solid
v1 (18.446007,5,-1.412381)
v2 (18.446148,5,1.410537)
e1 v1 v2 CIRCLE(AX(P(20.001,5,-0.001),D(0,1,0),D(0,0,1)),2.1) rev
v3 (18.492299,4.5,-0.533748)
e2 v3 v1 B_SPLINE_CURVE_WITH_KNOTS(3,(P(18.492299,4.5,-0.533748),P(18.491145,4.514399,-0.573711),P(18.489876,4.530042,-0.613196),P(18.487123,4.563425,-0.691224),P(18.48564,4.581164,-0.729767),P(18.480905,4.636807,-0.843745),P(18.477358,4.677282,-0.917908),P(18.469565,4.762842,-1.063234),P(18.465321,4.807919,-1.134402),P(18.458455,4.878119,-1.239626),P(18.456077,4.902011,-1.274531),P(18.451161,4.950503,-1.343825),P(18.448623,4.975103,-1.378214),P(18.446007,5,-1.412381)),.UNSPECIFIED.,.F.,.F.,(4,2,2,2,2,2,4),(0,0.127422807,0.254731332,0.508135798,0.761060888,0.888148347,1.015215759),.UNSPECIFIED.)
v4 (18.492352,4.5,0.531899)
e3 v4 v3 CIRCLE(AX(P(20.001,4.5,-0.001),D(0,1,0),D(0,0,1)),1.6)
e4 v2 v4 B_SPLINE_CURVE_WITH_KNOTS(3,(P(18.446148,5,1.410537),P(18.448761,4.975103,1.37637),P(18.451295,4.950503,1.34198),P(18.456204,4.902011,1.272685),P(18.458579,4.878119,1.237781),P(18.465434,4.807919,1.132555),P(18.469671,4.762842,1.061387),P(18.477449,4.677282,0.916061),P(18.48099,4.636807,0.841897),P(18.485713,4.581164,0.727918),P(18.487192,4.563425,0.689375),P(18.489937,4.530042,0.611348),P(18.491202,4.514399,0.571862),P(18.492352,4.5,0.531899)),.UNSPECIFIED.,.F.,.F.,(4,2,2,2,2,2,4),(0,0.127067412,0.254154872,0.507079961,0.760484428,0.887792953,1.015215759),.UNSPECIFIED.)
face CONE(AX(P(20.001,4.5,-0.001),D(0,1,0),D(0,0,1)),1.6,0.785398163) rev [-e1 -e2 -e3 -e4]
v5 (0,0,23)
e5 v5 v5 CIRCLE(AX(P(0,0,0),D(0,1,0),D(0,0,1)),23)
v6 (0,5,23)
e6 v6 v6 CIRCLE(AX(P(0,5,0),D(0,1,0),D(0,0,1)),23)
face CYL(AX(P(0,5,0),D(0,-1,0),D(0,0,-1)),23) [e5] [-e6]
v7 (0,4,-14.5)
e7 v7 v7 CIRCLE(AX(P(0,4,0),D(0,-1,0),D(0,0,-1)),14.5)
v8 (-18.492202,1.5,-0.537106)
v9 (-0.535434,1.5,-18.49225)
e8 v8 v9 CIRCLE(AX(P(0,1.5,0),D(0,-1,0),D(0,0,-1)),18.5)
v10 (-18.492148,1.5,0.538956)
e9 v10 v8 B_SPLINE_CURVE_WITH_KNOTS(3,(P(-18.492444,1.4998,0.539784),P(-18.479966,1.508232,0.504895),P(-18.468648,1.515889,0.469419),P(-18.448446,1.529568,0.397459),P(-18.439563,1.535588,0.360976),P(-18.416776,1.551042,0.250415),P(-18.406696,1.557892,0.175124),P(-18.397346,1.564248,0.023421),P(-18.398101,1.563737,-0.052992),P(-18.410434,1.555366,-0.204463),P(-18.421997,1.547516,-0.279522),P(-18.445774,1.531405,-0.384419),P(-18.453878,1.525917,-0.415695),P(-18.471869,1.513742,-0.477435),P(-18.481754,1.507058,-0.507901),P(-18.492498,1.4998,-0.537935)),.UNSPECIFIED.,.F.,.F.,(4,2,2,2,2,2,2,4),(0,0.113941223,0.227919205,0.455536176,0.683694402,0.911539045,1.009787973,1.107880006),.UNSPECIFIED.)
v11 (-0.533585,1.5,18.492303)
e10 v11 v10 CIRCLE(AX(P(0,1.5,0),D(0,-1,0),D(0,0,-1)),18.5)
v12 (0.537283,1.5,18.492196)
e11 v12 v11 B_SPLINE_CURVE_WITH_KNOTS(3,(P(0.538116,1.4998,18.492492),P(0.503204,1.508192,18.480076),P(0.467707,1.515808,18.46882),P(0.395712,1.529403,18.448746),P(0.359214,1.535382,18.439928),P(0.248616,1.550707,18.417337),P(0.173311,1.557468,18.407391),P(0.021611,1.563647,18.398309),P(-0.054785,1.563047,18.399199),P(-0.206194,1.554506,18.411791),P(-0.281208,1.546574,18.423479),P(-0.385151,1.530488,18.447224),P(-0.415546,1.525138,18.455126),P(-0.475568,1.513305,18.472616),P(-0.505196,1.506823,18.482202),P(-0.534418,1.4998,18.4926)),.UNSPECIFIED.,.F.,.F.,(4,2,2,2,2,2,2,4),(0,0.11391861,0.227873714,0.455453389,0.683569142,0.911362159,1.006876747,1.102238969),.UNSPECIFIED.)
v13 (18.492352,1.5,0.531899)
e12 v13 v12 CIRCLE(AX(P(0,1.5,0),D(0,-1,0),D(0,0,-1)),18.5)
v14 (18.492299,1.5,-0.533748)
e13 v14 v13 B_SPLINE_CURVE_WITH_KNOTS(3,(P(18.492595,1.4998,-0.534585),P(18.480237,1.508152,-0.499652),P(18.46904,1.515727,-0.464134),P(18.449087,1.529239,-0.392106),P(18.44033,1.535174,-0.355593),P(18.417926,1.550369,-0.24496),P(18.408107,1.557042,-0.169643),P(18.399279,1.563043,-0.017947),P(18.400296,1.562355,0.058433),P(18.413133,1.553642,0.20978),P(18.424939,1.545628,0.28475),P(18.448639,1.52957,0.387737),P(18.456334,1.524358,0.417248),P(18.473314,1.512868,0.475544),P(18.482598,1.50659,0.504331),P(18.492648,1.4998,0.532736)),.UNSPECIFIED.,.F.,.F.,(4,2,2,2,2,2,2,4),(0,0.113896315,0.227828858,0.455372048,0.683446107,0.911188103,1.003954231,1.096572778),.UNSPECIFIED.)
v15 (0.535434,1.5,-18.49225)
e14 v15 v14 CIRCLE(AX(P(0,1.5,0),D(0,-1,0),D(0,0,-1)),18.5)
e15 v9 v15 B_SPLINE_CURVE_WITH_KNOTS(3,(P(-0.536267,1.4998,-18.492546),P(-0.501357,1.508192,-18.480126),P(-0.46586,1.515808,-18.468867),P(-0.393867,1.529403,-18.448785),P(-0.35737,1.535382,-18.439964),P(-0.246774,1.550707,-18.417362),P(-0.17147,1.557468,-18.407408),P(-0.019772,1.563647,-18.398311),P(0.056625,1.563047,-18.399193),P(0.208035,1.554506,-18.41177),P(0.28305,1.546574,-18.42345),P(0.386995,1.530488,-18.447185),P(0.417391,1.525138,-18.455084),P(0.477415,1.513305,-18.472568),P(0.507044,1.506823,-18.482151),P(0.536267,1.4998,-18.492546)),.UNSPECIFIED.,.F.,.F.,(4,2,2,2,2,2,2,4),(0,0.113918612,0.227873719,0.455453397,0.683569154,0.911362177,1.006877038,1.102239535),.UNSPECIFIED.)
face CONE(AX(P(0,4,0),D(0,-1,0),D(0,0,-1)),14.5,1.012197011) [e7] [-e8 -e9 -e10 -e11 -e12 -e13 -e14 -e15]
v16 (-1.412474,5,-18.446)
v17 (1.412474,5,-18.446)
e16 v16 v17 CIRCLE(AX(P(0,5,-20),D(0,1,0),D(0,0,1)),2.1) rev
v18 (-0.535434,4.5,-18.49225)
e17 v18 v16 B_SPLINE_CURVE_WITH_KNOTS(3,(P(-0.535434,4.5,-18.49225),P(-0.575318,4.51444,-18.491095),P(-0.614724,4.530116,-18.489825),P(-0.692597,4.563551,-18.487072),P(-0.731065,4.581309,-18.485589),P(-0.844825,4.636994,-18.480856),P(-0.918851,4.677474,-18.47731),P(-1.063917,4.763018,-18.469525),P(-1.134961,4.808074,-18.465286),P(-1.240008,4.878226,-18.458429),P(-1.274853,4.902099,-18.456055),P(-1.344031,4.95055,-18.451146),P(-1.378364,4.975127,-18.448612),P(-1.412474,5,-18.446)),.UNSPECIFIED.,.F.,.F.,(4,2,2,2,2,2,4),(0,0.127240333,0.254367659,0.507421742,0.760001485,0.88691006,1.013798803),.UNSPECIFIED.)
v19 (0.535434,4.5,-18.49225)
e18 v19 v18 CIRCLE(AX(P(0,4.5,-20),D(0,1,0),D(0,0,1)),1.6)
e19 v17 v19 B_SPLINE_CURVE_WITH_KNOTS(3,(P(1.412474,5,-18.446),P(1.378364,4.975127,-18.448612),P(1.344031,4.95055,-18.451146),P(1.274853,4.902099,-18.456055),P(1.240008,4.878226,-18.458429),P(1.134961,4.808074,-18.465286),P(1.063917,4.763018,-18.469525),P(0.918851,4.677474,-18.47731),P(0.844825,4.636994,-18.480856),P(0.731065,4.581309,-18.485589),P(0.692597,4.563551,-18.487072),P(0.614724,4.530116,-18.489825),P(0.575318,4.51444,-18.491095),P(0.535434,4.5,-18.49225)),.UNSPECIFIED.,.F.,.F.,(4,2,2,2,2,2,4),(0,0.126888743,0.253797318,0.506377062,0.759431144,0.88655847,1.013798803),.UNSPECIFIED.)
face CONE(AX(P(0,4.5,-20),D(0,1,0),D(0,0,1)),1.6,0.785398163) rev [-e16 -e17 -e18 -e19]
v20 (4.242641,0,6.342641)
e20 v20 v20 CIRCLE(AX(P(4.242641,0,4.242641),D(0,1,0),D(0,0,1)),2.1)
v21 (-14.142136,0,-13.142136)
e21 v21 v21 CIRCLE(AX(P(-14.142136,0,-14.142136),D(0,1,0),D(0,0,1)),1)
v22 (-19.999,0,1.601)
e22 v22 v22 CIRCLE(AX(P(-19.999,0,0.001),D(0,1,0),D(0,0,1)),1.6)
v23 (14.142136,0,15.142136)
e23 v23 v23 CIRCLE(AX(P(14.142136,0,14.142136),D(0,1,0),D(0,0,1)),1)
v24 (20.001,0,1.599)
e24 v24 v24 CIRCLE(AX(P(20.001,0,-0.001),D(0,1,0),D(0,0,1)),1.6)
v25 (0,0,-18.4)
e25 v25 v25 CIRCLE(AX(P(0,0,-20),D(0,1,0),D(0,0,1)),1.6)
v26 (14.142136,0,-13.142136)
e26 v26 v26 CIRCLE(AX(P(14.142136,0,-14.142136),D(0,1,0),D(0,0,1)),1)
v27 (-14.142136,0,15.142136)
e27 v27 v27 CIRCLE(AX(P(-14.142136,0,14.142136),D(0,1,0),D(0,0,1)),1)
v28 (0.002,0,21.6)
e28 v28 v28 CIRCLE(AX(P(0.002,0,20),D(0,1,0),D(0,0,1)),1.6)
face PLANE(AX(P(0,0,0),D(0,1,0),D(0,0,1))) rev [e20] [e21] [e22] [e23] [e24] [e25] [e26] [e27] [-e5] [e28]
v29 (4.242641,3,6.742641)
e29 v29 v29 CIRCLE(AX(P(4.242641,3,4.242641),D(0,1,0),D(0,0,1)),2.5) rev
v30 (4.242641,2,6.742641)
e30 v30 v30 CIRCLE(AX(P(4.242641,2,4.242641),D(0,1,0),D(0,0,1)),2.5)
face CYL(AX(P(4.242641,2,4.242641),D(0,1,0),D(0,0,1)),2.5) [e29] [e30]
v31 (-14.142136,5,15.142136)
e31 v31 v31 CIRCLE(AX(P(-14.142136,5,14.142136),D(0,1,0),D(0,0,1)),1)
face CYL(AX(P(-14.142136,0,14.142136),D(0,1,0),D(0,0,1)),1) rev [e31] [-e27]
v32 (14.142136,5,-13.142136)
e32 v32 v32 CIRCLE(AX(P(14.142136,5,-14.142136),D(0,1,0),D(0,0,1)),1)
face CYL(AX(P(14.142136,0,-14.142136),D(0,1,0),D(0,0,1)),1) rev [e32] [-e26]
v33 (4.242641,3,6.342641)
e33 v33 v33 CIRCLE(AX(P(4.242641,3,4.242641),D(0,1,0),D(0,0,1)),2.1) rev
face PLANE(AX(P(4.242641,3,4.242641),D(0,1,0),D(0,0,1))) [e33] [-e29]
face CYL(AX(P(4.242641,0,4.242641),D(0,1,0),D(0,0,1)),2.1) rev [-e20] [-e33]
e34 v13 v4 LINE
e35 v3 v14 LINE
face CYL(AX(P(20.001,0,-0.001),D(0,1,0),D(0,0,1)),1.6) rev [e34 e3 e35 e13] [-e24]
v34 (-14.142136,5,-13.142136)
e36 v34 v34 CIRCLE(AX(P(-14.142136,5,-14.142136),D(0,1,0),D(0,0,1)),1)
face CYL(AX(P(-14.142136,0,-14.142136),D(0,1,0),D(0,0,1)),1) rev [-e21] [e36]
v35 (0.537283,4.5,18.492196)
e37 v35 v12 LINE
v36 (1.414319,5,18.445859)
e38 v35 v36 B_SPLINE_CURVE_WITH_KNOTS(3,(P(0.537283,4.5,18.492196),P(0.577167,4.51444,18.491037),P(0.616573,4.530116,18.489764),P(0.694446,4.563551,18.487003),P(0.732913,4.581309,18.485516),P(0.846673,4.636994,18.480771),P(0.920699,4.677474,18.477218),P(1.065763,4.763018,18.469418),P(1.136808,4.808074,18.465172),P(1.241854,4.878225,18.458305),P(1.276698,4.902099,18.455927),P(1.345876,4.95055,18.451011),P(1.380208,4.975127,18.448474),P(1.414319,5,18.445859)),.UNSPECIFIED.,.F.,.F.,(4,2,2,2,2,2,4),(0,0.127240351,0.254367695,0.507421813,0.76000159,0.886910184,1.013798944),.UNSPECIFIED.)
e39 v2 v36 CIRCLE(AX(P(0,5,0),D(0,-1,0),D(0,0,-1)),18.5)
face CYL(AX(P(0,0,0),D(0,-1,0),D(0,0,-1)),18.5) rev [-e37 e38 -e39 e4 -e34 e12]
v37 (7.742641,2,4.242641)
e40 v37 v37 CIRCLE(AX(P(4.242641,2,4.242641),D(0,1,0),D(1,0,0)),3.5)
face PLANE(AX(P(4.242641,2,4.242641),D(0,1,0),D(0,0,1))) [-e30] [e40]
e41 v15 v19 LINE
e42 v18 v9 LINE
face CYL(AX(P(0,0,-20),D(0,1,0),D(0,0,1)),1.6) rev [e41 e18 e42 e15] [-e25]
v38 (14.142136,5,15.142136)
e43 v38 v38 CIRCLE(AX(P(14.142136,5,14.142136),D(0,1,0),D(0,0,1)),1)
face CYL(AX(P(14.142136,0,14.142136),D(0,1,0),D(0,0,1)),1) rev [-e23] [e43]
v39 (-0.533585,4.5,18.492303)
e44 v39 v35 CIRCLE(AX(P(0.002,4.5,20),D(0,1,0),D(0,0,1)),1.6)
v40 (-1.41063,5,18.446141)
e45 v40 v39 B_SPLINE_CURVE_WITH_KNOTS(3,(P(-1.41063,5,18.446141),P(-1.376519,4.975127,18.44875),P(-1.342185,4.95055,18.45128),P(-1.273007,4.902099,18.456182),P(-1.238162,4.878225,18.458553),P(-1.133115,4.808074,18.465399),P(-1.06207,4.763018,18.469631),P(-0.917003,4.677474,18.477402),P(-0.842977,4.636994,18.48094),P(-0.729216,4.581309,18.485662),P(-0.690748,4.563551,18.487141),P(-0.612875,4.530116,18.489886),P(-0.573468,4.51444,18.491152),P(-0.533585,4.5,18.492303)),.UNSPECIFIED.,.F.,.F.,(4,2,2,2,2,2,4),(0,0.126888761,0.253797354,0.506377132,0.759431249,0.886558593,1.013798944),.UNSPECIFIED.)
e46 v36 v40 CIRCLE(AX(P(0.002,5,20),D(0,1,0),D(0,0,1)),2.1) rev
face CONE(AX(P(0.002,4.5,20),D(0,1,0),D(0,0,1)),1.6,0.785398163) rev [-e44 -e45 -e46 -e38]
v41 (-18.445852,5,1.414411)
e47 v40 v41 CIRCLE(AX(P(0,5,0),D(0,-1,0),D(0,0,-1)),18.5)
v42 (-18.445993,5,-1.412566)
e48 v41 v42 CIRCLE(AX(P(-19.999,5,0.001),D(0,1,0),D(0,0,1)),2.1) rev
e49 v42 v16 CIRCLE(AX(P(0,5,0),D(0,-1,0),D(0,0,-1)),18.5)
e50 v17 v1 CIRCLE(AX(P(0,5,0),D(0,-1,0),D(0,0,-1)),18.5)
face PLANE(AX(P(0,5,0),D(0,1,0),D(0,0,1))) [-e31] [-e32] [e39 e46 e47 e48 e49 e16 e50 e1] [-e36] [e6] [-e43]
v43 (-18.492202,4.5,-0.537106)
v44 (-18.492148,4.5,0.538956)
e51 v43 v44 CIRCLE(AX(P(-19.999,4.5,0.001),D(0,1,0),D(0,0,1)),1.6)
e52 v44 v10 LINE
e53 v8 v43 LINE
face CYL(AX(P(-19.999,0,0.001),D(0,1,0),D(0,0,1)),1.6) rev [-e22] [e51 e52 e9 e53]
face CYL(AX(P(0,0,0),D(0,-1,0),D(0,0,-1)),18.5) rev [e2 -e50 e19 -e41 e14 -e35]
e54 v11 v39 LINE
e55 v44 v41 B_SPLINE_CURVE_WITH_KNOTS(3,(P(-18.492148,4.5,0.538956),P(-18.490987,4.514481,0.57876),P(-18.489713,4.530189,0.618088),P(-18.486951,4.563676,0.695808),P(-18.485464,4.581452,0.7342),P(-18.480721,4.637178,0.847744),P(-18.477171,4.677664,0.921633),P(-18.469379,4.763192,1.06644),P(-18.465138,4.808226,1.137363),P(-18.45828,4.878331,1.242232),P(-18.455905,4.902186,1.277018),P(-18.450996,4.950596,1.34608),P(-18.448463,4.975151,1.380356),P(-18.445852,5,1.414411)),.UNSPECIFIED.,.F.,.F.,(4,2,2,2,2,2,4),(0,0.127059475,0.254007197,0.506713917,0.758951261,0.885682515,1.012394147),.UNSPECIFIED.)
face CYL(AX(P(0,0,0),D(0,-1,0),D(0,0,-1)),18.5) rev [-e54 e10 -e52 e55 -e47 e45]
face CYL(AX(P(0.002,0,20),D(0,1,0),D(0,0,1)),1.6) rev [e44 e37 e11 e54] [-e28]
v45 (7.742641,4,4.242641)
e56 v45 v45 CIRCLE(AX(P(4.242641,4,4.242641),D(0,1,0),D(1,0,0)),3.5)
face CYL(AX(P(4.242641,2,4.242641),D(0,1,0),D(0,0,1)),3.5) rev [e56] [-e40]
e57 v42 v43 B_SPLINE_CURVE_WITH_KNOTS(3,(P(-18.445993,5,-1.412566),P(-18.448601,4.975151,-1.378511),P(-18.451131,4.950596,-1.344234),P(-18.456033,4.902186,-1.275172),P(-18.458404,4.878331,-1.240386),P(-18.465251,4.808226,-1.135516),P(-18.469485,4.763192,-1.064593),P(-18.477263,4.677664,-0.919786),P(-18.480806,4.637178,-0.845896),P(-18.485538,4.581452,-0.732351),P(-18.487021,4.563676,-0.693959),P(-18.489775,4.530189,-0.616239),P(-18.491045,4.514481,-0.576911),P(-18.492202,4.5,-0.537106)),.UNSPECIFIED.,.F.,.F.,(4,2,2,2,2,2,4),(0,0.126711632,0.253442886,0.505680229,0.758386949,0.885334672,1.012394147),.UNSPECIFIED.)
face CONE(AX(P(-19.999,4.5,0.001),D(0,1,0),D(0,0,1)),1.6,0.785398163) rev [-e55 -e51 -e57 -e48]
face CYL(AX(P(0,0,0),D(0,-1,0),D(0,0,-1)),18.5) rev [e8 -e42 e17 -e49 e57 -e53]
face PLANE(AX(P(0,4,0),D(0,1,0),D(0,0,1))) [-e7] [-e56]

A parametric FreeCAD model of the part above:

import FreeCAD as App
import Part
import Sketcher
from FreeCAD import Vector


def edges_at(feature, points):
    """Names of the edges that pass closest to the given points."""
    edges = feature.Shape.Edges
    near = lambda p: min(range(len(edges)), key=lambda i: edges[i].distToShape(Part.Vertex(*p))[0])
    return sorted({f"Edge{near(p) + 1}" for p in points})

doc = App.newDocument("Part")
params = doc.addObject("Spreadsheet::Sheet", "Params")
for row, (alias, value) in enumerate([
    ("sketch1_diameter", "46 mm"),
    ("pad1_length", "5 mm"),
    ("sketch2_diameter", "3.2 mm"),
    ("sketch3_diameter", "2 mm"),
    ("sketch4_height", "1 mm"),
    ("sketch4_width", "14.5 mm"),
    ("sketch4_width2", "18.5 mm"),
    ("sketch4_height2", "3.5 mm"),
    ("groove_angle", "360 deg"),
    ("sketch5_diameter", "4.2 mm"),
    ("sketch6_diameter", "7 mm"),
    ("sketch6_diameter2", "5 mm"),
    ("pocket4_length", "2 mm"),
    ("sketch7_diameter", "7 mm"),
    ("pocket5_length", "1 mm"),
    ("chamfer_size", "0.5 mm"),
], start=1):
    params.set(f"A{row}", alias)
    params.set(f"B{row}", "=" + value)
    params.setAlias(f"B{row}", alias)

body = doc.addObject("PartDesign::Body", "Body")

# Sketch on XZ plane
sketch1 = doc.addObject("Sketcher::SketchObject", "Sketch")
body.addObject(sketch1)
sketch1.AttachmentSupport = (doc.XZ_Plane, [""])
sketch1.MapMode = "FlatFace"
sketch1.addGeometry(Part.Circle(Vector(0, 0, 0), Vector(0, 0, 1), 23), False)
sketch1.addConstraint(Sketcher.Constraint("Coincident", 0, 3, -1, 1))
sketch1.addConstraint(Sketcher.Constraint("Diameter", 0, 46.0))
sketch1.setExpression("Constraints[1]", "Params.sketch1_diameter")
pad1 = doc.addObject("PartDesign::Pad", "Pad")
body.addObject(pad1)
pad1.Profile = sketch1
pad1.setExpression("Length", "Params.pad1_length")
pad1.Reversed = True

# Sketch on XZ plane
sketch2 = doc.addObject("Sketcher::SketchObject", "Sketch001")
body.addObject(sketch2)
sketch2.AttachmentSupport = (doc.XZ_Plane, [""])
sketch2.MapMode = "FlatFace"
sketch2.AttachmentOffset = App.Placement(Vector(0, 0, -5), App.Rotation())
sketch2.addGeometry(Part.Circle(Vector(0, -20, 0), Vector(0, 0, 1), 1.6), False)
sketch2.addGeometry(Part.Circle(Vector(20.001, -0.001, 0), Vector(0, 0, 1), 1.6), False)
sketch2.addGeometry(Part.Circle(Vector(0.002, 20, 0), Vector(0, 0, 1), 1.6), False)
sketch2.addGeometry(Part.Circle(Vector(-19.999, 0.001, 0), Vector(0, 0, 1), 1.6), False)
sketch2.addConstraint(Sketcher.Constraint("Equal", 0, 1))
sketch2.addConstraint(Sketcher.Constraint("Equal", 1, 2))
sketch2.addConstraint(Sketcher.Constraint("Equal", 2, 3))
sketch2.addConstraint(Sketcher.Constraint("PointOnObject", 0, 3, -2))
sketch2.addConstraint(Sketcher.Constraint("Diameter", 0, 3.2))
sketch2.addConstraint(Sketcher.Constraint("DistanceY", 0, 3, -1, 1, 20.0))
sketch2.addConstraint(Sketcher.Constraint("DistanceY", -1, 1, 2, 3, 20.0))
sketch2.addConstraint(Sketcher.Constraint("DistanceX", 3, 3, 1, 3, 40.0))
sketch2.addConstraint(Sketcher.Constraint("DistanceX", -1, 1, 1, 3, 20.001))
sketch2.addConstraint(Sketcher.Constraint("DistanceY", 1, 3, -1, 1, 0.001))
sketch2.addConstraint(Sketcher.Constraint("DistanceX", -1, 1, 2, 3, 0.002))
sketch2.addConstraint(Sketcher.Constraint("DistanceY", -1, 1, 3, 3, 0.001))
sketch2.setExpression("Constraints[4]", "Params.sketch2_diameter")
pocket1 = doc.addObject("PartDesign::Pocket", "Pocket")
body.addObject(pocket1)
pocket1.Profile = sketch2
pocket1.Type = "ThroughAll"
pocket1.Reversed = True

# Sketch on XZ plane
sketch3 = doc.addObject("Sketcher::SketchObject", "Sketch002")
body.addObject(sketch3)
sketch3.AttachmentSupport = (doc.XZ_Plane, [""])
sketch3.MapMode = "FlatFace"
sketch3.AttachmentOffset = App.Placement(Vector(0, 0, -5), App.Rotation())
sketch3.addGeometry(Part.Circle(Vector(14.142136, -14.142136, 0), Vector(0, 0, 1), 1), False)
sketch3.addGeometry(Part.Circle(Vector(14.142136, 14.142136, 0), Vector(0, 0, 1), 1), False)
sketch3.addGeometry(Part.Circle(Vector(-14.142136, 14.142136, 0), Vector(0, 0, 1), 1), False)
sketch3.addGeometry(Part.Circle(Vector(-14.142136, -14.142136, 0), Vector(0, 0, 1), 1), False)
sketch3.addConstraint(Sketcher.Constraint("Equal", 0, 1))
sketch3.addConstraint(Sketcher.Constraint("Equal", 1, 2))
sketch3.addConstraint(Sketcher.Constraint("Equal", 2, 3))
sketch3.addConstraint(Sketcher.Constraint("Symmetric", 0, 3, 2, 3, -1, 1))
sketch3.addConstraint(Sketcher.Constraint("Symmetric", 1, 3, 3, 3, -1, 1))
sketch3.addConstraint(Sketcher.Constraint("Symmetric", 1, 3, 2, 3, -2))
sketch3.addConstraint(Sketcher.Constraint("Diameter", 0, 2.0))
sketch3.addConstraint(Sketcher.Constraint("DistanceY", 0, 3, 1, 3, 28.284271))
sketch3.addConstraint(Sketcher.Constraint("DistanceX", 2, 3, 1, 3, 28.284271))
sketch3.setExpression("Constraints[6]", "Params.sketch3_diameter")
pocket2 = doc.addObject("PartDesign::Pocket", "Pocket001")
body.addObject(pocket2)
pocket2.Profile = sketch3
pocket2.Type = "ThroughAll"
pocket2.Reversed = True

# Sketch on XY plane
sketch4 = doc.addObject("Sketcher::SketchObject", "Sketch003")
body.addObject(sketch4)
sketch4.AttachmentSupport = (doc.XY_Plane, [""])
sketch4.MapMode = "FlatFace"
sketch4.addGeometry(Part.LineSegment(Vector(0, 5, 0), Vector(0, 4, 0)), False)
sketch4.addGeometry(Part.LineSegment(Vector(0, 4, 0), Vector(14.5, 4, 0)), False)
sketch4.addGeometry(Part.LineSegment(Vector(14.5, 4, 0), Vector(18.5, 1.5, 0)), False)
sketch4.addGeometry(Part.LineSegment(Vector(18.5, 1.5, 0), Vector(18.5, 5, 0)), False)
sketch4.addGeometry(Part.LineSegment(Vector(18.5, 5, 0), Vector(0, 5, 0)), False)
sketch4.addConstraint(Sketcher.Constraint("Coincident", 0, 2, 1, 1))
sketch4.addConstraint(Sketcher.Constraint("Coincident", 1, 2, 2, 1))
sketch4.addConstraint(Sketcher.Constraint("Coincident", 2, 2, 3, 1))
sketch4.addConstraint(Sketcher.Constraint("Coincident", 3, 2, 4, 1))
sketch4.addConstraint(Sketcher.Constraint("Coincident", 4, 2, 0, 1))
sketch4.addConstraint(Sketcher.Constraint("Vertical", 0))
sketch4.addConstraint(Sketcher.Constraint("Horizontal", 1))
sketch4.addConstraint(Sketcher.Constraint("Vertical", 3))
sketch4.addConstraint(Sketcher.Constraint("Horizontal", 4))
sketch4.addConstraint(Sketcher.Constraint("PointOnObject", 0, 2, -2))
sketch4.addConstraint(Sketcher.Constraint("DistanceY", 0, 2, 0, 1, 1.0))
sketch4.addConstraint(Sketcher.Constraint("DistanceX", 1, 1, 1, 2, 14.5))
sketch4.addConstraint(Sketcher.Constraint("DistanceX", 4, 2, 4, 1, 18.5))
sketch4.addConstraint(Sketcher.Constraint("DistanceY", 3, 1, 3, 2, 3.5))
sketch4.addConstraint(Sketcher.Constraint("DistanceY", -1, 1, 0, 2, 4.0))
sketch4.setExpression("Constraints[10]", "Params.sketch4_height")
sketch4.setExpression("Constraints[11]", "Params.sketch4_width")
sketch4.setExpression("Constraints[12]", "Params.sketch4_width2")
sketch4.setExpression("Constraints[13]", "Params.sketch4_height2")
groove = doc.addObject("PartDesign::Groove", "Groove")
body.addObject(groove)
groove.Profile = sketch4
groove.ReferenceAxis = (sketch4, ["V_Axis"])
groove.setExpression("Angle", "Params.groove_angle")

# Sketch on XZ plane
sketch5 = doc.addObject("Sketcher::SketchObject", "Sketch004")
body.addObject(sketch5)
sketch5.AttachmentSupport = (doc.XZ_Plane, [""])
sketch5.MapMode = "FlatFace"
sketch5.AttachmentOffset = App.Placement(Vector(0, 0, -4), App.Rotation())
sketch5.addGeometry(Part.Circle(Vector(4.242641, 4.242641, 0), Vector(0, 0, 1), 2.1), False)
sketch5.addConstraint(Sketcher.Constraint("Diameter", 0, 4.2))
sketch5.addConstraint(Sketcher.Constraint("DistanceX", -1, 1, 0, 3, 4.242641))
sketch5.addConstraint(Sketcher.Constraint("DistanceY", -1, 1, 0, 3, 4.242641))
sketch5.setExpression("Constraints[0]", "Params.sketch5_diameter")
pocket3 = doc.addObject("PartDesign::Pocket", "Pocket002")
body.addObject(pocket3)
pocket3.Profile = sketch5
pocket3.Type = "ThroughAll"
pocket3.Reversed = True

# Sketch on XZ plane
sketch6 = doc.addObject("Sketcher::SketchObject", "Sketch005")
body.addObject(sketch6)
sketch6.AttachmentSupport = (doc.XZ_Plane, [""])
sketch6.MapMode = "FlatFace"
sketch6.AttachmentOffset = App.Placement(Vector(0, 0, -4), App.Rotation())
sketch6.addGeometry(Part.Circle(Vector(4.242641, 4.242641, 0), Vector(0, 0, 1), 3.5), False)
sketch6.addGeometry(Part.Circle(Vector(4.242641, 4.242641, 0), Vector(0, 0, 1), 2.5), False)
sketch6.addConstraint(Sketcher.Constraint("Coincident", 1, 3, 0, 3))
sketch6.addConstraint(Sketcher.Constraint("Diameter", 0, 7.0))
sketch6.addConstraint(Sketcher.Constraint("Diameter", 1, 5.0))
sketch6.addConstraint(Sketcher.Constraint("DistanceX", -1, 1, 0, 3, 4.242641))
sketch6.addConstraint(Sketcher.Constraint("DistanceY", -1, 1, 0, 3, 4.242641))
sketch6.setExpression("Constraints[1]", "Params.sketch6_diameter")
sketch6.setExpression("Constraints[2]", "Params.sketch6_diameter2")
pocket4 = doc.addObject("PartDesign::Pocket", "Pocket003")
body.addObject(pocket4)
pocket4.Profile = sketch6
pocket4.setExpression("Length", "Params.pocket4_length")
pocket4.Reversed = True

# Sketch on XZ plane
sketch7 = doc.addObject("Sketcher::SketchObject", "Sketch006")
body.addObject(sketch7)
sketch7.AttachmentSupport = (doc.XZ_Plane, [""])
sketch7.MapMode = "FlatFace"
sketch7.AttachmentOffset = App.Placement(Vector(0, 0, -4), App.Rotation())
sketch7.addGeometry(Part.Circle(Vector(4.242641, 4.242641, 0), Vector(0, 0, 1), 3.5), False)
sketch7.addConstraint(Sketcher.Constraint("Diameter", 0, 7.0))
sketch7.addConstraint(Sketcher.Constraint("DistanceX", -1, 1, 0, 3, 4.242641))
sketch7.addConstraint(Sketcher.Constraint("DistanceY", -1, 1, 0, 3, 4.242641))
sketch7.setExpression("Constraints[0]", "Params.sketch7_diameter")
pocket5 = doc.addObject("PartDesign::Pocket", "Pocket004")
body.addObject(pocket5)
pocket5.Profile = sketch7
pocket5.setExpression("Length", "Params.pocket5_length")
pocket5.Reversed = True
doc.recompute()

chamfer = doc.addObject("PartDesign::Chamfer", "Chamfer")
body.addObject(chamfer)
chamfer.Base = (pocket5, edges_at(pocket5, [
    (0, 5, -21.6),
    (21.307, 5, -0.925),
    (1.579, 5, 20.272),
    (-21.307, 5, -0.921),
]))
chamfer.setExpression("Size", "Params.chamfer_size")

doc.recompute()
